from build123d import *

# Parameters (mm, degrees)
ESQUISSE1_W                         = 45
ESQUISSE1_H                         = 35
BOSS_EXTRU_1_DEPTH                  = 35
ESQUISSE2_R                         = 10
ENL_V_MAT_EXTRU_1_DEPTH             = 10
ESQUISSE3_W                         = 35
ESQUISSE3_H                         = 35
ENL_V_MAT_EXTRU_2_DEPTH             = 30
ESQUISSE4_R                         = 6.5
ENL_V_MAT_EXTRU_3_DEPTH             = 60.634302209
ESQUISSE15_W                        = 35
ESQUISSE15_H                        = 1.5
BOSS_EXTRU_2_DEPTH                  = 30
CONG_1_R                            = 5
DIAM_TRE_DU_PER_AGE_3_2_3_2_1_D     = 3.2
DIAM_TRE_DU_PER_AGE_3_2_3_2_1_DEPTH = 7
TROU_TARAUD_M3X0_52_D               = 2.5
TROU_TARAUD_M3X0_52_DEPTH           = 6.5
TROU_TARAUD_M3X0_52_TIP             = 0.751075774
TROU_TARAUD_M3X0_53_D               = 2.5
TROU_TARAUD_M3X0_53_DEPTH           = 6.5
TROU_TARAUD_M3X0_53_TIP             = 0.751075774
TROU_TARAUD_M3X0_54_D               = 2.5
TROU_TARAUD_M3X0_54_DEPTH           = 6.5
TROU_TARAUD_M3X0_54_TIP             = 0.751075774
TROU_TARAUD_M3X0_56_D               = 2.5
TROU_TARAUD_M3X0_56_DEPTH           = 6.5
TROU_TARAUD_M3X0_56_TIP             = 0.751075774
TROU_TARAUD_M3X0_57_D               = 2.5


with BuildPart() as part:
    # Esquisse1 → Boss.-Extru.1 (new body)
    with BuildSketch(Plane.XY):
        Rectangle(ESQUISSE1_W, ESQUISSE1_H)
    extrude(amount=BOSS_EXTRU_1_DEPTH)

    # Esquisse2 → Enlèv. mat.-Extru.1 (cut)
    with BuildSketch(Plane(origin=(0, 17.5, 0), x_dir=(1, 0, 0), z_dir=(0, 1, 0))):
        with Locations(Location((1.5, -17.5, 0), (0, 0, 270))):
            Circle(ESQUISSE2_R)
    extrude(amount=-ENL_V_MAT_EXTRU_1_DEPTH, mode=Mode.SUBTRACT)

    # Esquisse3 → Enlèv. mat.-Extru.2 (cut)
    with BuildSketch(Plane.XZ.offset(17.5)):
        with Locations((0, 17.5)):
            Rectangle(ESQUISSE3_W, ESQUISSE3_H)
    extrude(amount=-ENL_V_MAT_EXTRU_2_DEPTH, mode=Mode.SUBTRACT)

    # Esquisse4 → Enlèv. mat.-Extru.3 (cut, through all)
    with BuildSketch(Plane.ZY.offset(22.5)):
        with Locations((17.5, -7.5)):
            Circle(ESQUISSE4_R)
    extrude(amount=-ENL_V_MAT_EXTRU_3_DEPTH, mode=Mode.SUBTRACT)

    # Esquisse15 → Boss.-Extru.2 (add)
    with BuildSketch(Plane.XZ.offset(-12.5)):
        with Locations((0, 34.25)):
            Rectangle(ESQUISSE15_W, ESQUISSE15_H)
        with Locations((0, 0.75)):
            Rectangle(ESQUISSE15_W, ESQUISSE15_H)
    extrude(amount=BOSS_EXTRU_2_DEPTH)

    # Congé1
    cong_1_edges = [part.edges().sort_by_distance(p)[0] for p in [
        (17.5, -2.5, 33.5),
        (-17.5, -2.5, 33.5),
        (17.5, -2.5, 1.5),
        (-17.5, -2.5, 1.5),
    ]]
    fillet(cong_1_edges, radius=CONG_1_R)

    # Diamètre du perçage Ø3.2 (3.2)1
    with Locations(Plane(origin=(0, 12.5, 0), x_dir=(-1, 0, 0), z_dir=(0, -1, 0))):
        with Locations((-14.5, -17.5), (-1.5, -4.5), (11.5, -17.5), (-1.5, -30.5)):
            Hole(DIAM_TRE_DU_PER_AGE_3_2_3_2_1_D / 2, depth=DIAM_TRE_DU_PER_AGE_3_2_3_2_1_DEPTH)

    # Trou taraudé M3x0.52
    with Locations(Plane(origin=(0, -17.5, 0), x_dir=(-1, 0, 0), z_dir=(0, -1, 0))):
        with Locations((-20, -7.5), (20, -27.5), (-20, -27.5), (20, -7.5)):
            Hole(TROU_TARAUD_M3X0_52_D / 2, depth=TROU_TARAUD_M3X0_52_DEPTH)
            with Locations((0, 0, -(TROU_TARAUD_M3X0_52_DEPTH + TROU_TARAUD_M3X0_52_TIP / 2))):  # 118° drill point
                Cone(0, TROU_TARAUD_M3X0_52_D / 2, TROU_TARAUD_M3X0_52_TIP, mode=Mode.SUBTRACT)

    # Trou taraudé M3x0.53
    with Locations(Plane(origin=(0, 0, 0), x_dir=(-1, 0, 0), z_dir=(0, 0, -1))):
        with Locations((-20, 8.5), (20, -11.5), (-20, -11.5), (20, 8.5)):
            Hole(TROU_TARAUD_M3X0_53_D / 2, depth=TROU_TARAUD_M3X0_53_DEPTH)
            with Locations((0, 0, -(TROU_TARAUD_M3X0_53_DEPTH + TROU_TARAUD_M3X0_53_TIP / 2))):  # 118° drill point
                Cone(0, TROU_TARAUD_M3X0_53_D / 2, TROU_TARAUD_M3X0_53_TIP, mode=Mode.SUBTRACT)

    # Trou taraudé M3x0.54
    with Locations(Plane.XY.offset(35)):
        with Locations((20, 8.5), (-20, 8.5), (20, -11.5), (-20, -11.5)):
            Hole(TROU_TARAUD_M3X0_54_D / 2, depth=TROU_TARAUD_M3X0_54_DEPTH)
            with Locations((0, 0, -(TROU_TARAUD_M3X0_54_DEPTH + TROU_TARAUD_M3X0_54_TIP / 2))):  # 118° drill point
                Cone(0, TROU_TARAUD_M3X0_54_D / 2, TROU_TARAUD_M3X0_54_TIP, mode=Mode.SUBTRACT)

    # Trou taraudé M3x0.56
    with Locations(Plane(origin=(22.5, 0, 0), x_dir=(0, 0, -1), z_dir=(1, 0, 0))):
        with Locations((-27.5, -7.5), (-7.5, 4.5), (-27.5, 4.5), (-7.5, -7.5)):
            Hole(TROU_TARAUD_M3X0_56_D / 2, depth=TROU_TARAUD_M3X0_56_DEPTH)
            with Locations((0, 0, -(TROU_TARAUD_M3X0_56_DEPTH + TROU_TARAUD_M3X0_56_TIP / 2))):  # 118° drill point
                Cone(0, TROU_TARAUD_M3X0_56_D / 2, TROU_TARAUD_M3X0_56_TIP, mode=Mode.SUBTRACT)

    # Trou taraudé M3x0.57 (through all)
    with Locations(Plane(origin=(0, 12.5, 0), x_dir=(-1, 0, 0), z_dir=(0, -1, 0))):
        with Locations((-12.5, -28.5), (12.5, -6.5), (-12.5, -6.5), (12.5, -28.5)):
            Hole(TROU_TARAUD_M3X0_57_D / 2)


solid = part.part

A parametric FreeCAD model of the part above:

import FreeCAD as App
import Part
import Sketcher

V = App.Vector


def edges_at(feature, points):
    """Names of the edges that pass closest to the given points."""
    edges = feature.Shape.Edges
    near = lambda p: min(range(len(edges)), key=lambda i: edges[i].distToShape(Part.Vertex(*p))[0])
    return sorted({f"Edge{near(p) + 1}" for p in points})

doc = App.newDocument("Part")
body = doc.addObject("PartDesign::Body", "Body")

sketch1 = body.newObject("Sketcher::SketchObject", "Sketch")
sketch1.AttachmentSupport = (doc.getObject("XY_Plane"), [""])
sketch1.MapMode = "FlatFace"
sketch1.addGeometry([
    Part.LineSegment(V(-22.5, 17.5, 0), V(-22.5, -17.5, 0)),
    Part.LineSegment(V(-22.5, -17.5, 0), V(22.5, -17.5, 0)),
    Part.LineSegment(V(22.5, -17.5, 0), V(22.5, 17.5, 0)),
    Part.LineSegment(V(22.5, 17.5, 0), V(-22.5, 17.5, 0)),
], False)
sketch1.addConstraint([
    Sketcher.Constraint("Coincident", 0, 2, 1, 1),
    Sketcher.Constraint("Coincident", 1, 2, 2, 1),
    Sketcher.Constraint("Coincident", 2, 2, 3, 1),
    Sketcher.Constraint("Coincident", 3, 2, 0, 1),
    Sketcher.Constraint("Vertical", 0),
    Sketcher.Constraint("Horizontal", 1),
    Sketcher.Constraint("Vertical", 2),
    Sketcher.Constraint("Horizontal", 3),
    Sketcher.Constraint("Symmetric", 0, 2, 2, 2, -1, 1),
    Sketcher.Constraint("DistanceX", 1, 1, 1, 2, 45.0),
    Sketcher.Constraint("DistanceY", 0, 2, 0, 1, 35.0),
])
pad1 = body.newObject("PartDesign::Pad", "Pad")
pad1.Profile = sketch1
pad1.Length = 35

sketch2 = body.newObject("Sketcher::SketchObject", "Sketch001")
sketch2.AttachmentSupport = (doc.getObject("XZ_Plane"), [""])
sketch2.MapMode = "FlatFace"
sketch2.AttachmentOffset = App.Placement(V(0, 0, -17.5), App.Rotation())
sketch2.addGeometry(Part.Circle(V(1.5, 17.5, 0), V(0, 0, 1), 10), False)
sketch2.addConstraint([
    Sketcher.Constraint("Diameter", 0, 20.0),
    Sketcher.Constraint("DistanceX", -1, 1, 0, 3, 1.5),
    Sketcher.Constraint("DistanceY", -1, 1, 0, 3, 17.5),
])
pocket1 = body.newObject("PartDesign::Pocket", "Pocket")
pocket1.Profile = sketch2
pocket1.Length = 10
pocket1.Reversed = True

sketch3 = body.newObject("Sketcher::SketchObject", "Sketch002")
sketch3.AttachmentSupport = (doc.getObject("XZ_Plane"), [""])
sketch3.MapMode = "FlatFace"
sketch3.AttachmentOffset = App.Placement(V(0, 0, 17.5), App.Rotation())
sketch3.addGeometry([
    Part.LineSegment(V(-17.5, 35, 0), V(-17.5, 0, 0)),
    Part.LineSegment(V(-17.5, 0, 0), V(17.5, 0, 0)),
    Part.LineSegment(V(17.5, 0, 0), V(17.5, 35, 0)),
    Part.LineSegment(V(17.5, 35, 0), V(-17.5, 35, 0)),
], False)
sketch3.addConstraint([
    Sketcher.Constraint("Coincident", 0, 2, 1, 1),
    Sketcher.Constraint("Coincident", 1, 2, 2, 1),
    Sketcher.Constraint("Coincident", 2, 2, 3, 1),
    Sketcher.Constraint("Coincident", 3, 2, 0, 1),
    Sketcher.Constraint("Vertical", 0),
    Sketcher.Constraint("Horizontal", 1),
    Sketcher.Constraint("Vertical", 2),
    Sketcher.Constraint("Horizontal", 3),
    Sketcher.Constraint("Symmetric", 0, 2, 1, 2, -1, 1),
    Sketcher.Constraint("Equal", 3, 0),
    Sketcher.Constraint("DistanceX", 1, 1, 1, 2, 35.0),
])
pocket2 = body.newObject("PartDesign::Pocket", "Pocket001")
pocket2.Profile = sketch3
pocket2.Length = 30

sketch4 = body.newObject("Sketcher::SketchObject", "Sketch003")
sketch4.AttachmentSupport = (doc.getObject("YZ_Plane"), [""])
sketch4.MapMode = "FlatFace"
sketch4.AttachmentOffset = App.Placement(V(0, 0, -22.5), App.Rotation())
sketch4.addGeometry(Part.Circle(V(-7.5, 17.5, 0), V(0, 0, 1), 6.5), False)
sketch4.addConstraint([
    Sketcher.Constraint("Diameter", 0, 13.0),
    Sketcher.Constraint("DistanceX", 0, 3, -1, 1, 7.5),
    Sketcher.Constraint("DistanceY", -1, 1, 0, 3, 17.5),
])
pocket3 = body.newObject("PartDesign::Pocket", "Pocket002")
pocket3.Profile = sketch4
pocket3.Type = "ThroughAll"
pocket3.Reversed = True

sketch5 = body.newObject("Sketcher::SketchObject", "Sketch004")
sketch5.AttachmentSupport = (doc.getObject("XZ_Plane"), [""])
sketch5.MapMode = "FlatFace"
sketch5.AttachmentOffset = App.Placement(V(0, 0, -12.5), App.Rotation())
sketch5.addGeometry([
    Part.LineSegment(V(-17.5, 35, 0), V(-17.5, 33.5, 0)),
    Part.LineSegment(V(-17.5, 33.5, 0), V(17.5, 33.5, 0)),
    Part.LineSegment(V(17.5, 33.5, 0), V(17.5, 35, 0)),
    Part.LineSegment(V(17.5, 35, 0), V(-17.5, 35, 0)),
    Part.LineSegment(V(-17.5, 1.5, 0), V(-17.5, 0, 0)),
    Part.LineSegment(V(-17.5, 0, 0), V(17.5, 0, 0)),
    Part.LineSegment(V(17.5, 0, 0), V(17.5, 1.5, 0)),
    Part.LineSegment(V(17.5, 1.5, 0), V(-17.5, 1.5, 0)),
], False)
sketch5.addConstraint([
    Sketcher.Constraint("Coincident", 0, 2, 1, 1),
    Sketcher.Constraint("Coincident", 1, 2, 2, 1),
    Sketcher.Constraint("Coincident", 2, 2, 3, 1),
    Sketcher.Constraint("Coincident", 3, 2, 0, 1),
    Sketcher.Constraint("Coincident", 4, 2, 5, 1),
    Sketcher.Constraint("Coincident", 5, 2, 6, 1),
    Sketcher.Constraint("Coincident", 6, 2, 7, 1),
    Sketcher.Constraint("Coincident", 7, 2, 4, 1),
    Sketcher.Constraint("Vertical", 0),
    Sketcher.Constraint("Horizontal", 1),
    Sketcher.Constraint("Vertical", 2),
    Sketcher.Constraint("Horizontal", 3),
    Sketcher.Constraint("Vertical", 4),
    Sketcher.Constraint("Horizontal", 5),
    Sketcher.Constraint("Vertical", 6),
    Sketcher.Constraint("Horizontal", 7),
    Sketcher.Constraint("Symmetric", 4, 2, 5, 2, -1, 1),
    Sketcher.Constraint("Vertical", 3, 2, 4, 2),
    Sketcher.Constraint("Vertical", 2, 2, 5, 2),
    Sketcher.Constraint("Equal", 2, 4),
    Sketcher.Constraint("DistanceX", 1, 1, 1, 2, 35.0),
    Sketcher.Constraint("DistanceY", 0, 2, 0, 1, 1.5),
    Sketcher.Constraint("DistanceY", -1, 1, 2, 2, 35.0),
])
pad2 = body.newObject("PartDesign::Pad", "Pad001")
pad2.Profile = sketch5
pad2.Length = 30
doc.recompute()

fillet = body.newObject("PartDesign::Fillet", "Fillet")
fillet.Base = (pad2, edges_at(pad2, [
    (17.5, -2.5, 33.5),
    (-17.5, -2.5, 33.5),
    (17.5, -2.5, 1.5),
    (-17.5, -2.5, 1.5),
]))
fillet.Radius = 5

sketch6 = body.newObject("Sketcher::SketchObject", "Sketch005")
sketch6.AttachmentSupport = (doc.getObject("XZ_Plane"), [""])
sketch6.MapMode = "FlatFace"
sketch6.AttachmentOffset = App.Placement(V(0, 0, -12.5), App.Rotation())
sketch6.addGeometry([
    Part.Circle(V(14.5, 17.5, 0), V(0, 0, 1), 1.6),
    Part.Circle(V(1.5, 4.5, 0), V(0, 0, 1), 1.6),
    Part.Circle(V(-11.5, 17.5, 0), V(0, 0, 1), 1.6),
    Part.Circle(V(1.5, 30.5, 0), V(0, 0, 1), 1.6),
], False)
sketch6.addConstraint([
    Sketcher.Constraint("Equal", 0, 1),
    Sketcher.Constraint("Equal", 1, 2),
    Sketcher.Constraint("Equal", 2, 3),
    Sketcher.Constraint("Horizontal", 0, 3, 2, 3),
    Sketcher.Constraint("Vertical", 1, 3, 3, 3),
    Sketcher.Constraint("Diameter", 0, 3.2),
    Sketcher.Constraint("DistanceX", 1, 3, 0, 3, 13.0),
    Sketcher.Constraint("DistanceY", 1, 3, 0, 3, 13.0),
    Sketcher.Constraint("DistanceX", 2, 3, 1, 3, 13.0),
    Sketcher.Constraint("DistanceY", 0, 3, 3, 3, 13.0),
    Sketcher.Constraint("DistanceX", -1, 1, 0, 3, 14.5),
    Sketcher.Constraint("DistanceY", -1, 1, 0, 3, 17.5),
])
doc.recompute()
hole = body.newObject("PartDesign::Hole", "Hole")
hole.Profile = sketch6
hole.ThreadType = "None"
hole.Diameter = 3.2
hole.DepthType = "Dimension"
hole.Depth = 7
hole.DrillPoint = "Flat"

sketch7 = body.newObject("Sketcher::SketchObject", "Sketch006")
sketch7.AttachmentSupport = (doc.getObject("XZ_Plane"), [""])
sketch7.MapMode = "FlatFace"
sketch7.AttachmentOffset = App.Placement(V(0, 0, 17.5), App.Rotation())
sketch7.addGeometry([
    Part.Circle(V(20, 7.5, 0), V(0, 0, 1), 1.25),
    Part.Circle(V(-20, 27.5, 0), V(0, 0, 1), 1.25),
    Part.Circle(V(20, 27.5, 0), V(0, 0, 1), 1.25),
    Part.Circle(V(-20, 7.5, 0), V(0, 0, 1), 1.25),
], False)
sketch7.addConstraint([
    Sketcher.Constraint("Equal", 0, 1),
    Sketcher.Constraint("Equal", 1, 2),
    Sketcher.Constraint("Equal", 2, 3),
    Sketcher.Constraint("Symmetric", 1, 3, 2, 3, -2),
    Sketcher.Constraint("Symmetric", 0, 3, 3, 3, -2),
    Sketcher.Constraint("Vertical", 0, 3, 2, 3),
    Sketcher.Constraint("Diameter", 0, 2.5),
    Sketcher.Constraint("DistanceX", -1, 1, 0, 3, 20.0),
    Sketcher.Constraint("DistanceY", 0, 3, 1, 3, 20.0),
    Sketcher.Constraint("DistanceY", -1, 1, 0, 3, 7.5),
])
doc.recompute()
hole2 = body.newObject("PartDesign::Hole", "Hole001")
hole2.Profile = sketch7
hole2.ThreadType = "None"
hole2.Diameter = 2.5
hole2.DepthType = "Dimension"
hole2.Depth = 6.5
hole2.DrillPoint = "Angled"
hole2.DrillPointAngle = 118

sketch8 = body.newObject("Sketcher::SketchObject", "Sketch007")
sketch8.AttachmentSupport = (doc.getObject("XY_Plane"), [""])
sketch8.MapMode = "FlatFace"
sketch8.addGeometry([
    Part.Circle(V(20, 8.5, 0), V(0, 0, 1), 1.25),
    Part.Circle(V(-20, -11.5, 0), V(0, 0, 1), 1.25),
    Part.Circle(V(20, -11.5, 0), V(0, 0, 1), 1.25),
    Part.Circle(V(-20, 8.5, 0), V(0, 0, 1), 1.25),
], False)
sketch8.addConstraint([
    Sketcher.Constraint("Equal", 0, 1),
    Sketcher.Constraint("Equal", 1, 2),
    Sketcher.Constraint("Equal", 2, 3),
    Sketcher.Constraint("Symmetric", 1, 3, 2, 3, -2),
    Sketcher.Constraint("Symmetric", 0, 3, 3, 3, -2),
    Sketcher.Constraint("Vertical", 0, 3, 2, 3),
    Sketcher.Constraint("Diameter", 0, 2.5),
    Sketcher.Constraint("DistanceX", -1, 1, 0, 3, 20.0),
    Sketcher.Constraint("DistanceY", 1, 3, 0, 3, 20.0),
    Sketcher.Constraint("DistanceY", -1, 1, 0, 3, 8.5),
])
doc.recompute()
hole3 = body.newObject("PartDesign::Hole", "Hole002")
hole3.Profile = sketch8
hole3.ThreadType = "None"
hole3.Diameter = 2.5
hole3.DepthType = "Dimension"
hole3.Depth = 6.5
hole3.DrillPoint = "Angled"
hole3.DrillPointAngle = 118
hole3.Reversed = True

sketch9 = body.newObject("Sketcher::SketchObject", "Sketch008")
sketch9.AttachmentSupport = (doc.getObject("XY_Plane"), [""])
sketch9.MapMode = "FlatFace"
sketch9.AttachmentOffset = App.Placement(V(0, 0, 35), App.Rotation())
sketch9.addGeometry([
    Part.Circle(V(20, 8.5, 0), V(0, 0, 1), 1.25),
    Part.Circle(V(-20, 8.5, 0), V(0, 0, 1), 1.25),
    Part.Circle(V(20, -11.5, 0), V(0, 0, 1), 1.25),
    Part.Circle(V(-20, -11.5, 0), V(0, 0, 1), 1.25),
], False)
sketch9.addConstraint([
    Sketcher.Constraint("Equal", 0, 1),
    Sketcher.Constraint("Equal", 1, 2),
    Sketcher.Constraint("Equal", 2, 3),
    Sketcher.Constraint("Symmetric", 0, 3, 1, 3, -2),
    Sketcher.Constraint("Symmetric", 2, 3, 3, 3, -2),
    Sketcher.Constraint("Vertical", 0, 3, 2, 3),
    Sketcher.Constraint("Diameter", 0, 2.5),
    Sketcher.Constraint("DistanceX", -1, 1, 0, 3, 20.0),
    Sketcher.Constraint("DistanceY", 2, 3, 0, 3, 20.0),
    Sketcher.Constraint("DistanceY", -1, 1, 0, 3, 8.5),
])
doc.recompute()
hole4 = body.newObject("PartDesign::Hole", "Hole003")
hole4.Profile = sketch9
hole4.ThreadType = "None"
hole4.Diameter = 2.5
hole4.DepthType = "Dimension"
hole4.Depth = 6.5
hole4.DrillPoint = "Angled"
hole4.DrillPointAngle = 118

sketch10 = body.newObject("Sketcher::SketchObject", "Sketch009")
sketch10.AttachmentSupport = (doc.getObject("YZ_Plane"), [""])
sketch10.MapMode = "FlatFace"
sketch10.AttachmentOffset = App.Placement(V(0, 0, 22.5), App.Rotation())
sketch10.addGeometry([
    Part.Circle(V(-7.5, 27.5, 0), V(0, 0, 1), 1.25),
    Part.Circle(V(4.5, 7.5, 0), V(0, 0, 1), 1.25),
    Part.Circle(V(4.5, 27.5, 0), V(0, 0, 1), 1.25),
    Part.Circle(V(-7.5, 7.5, 0), V(0, 0, 1), 1.25),
], False)
sketch10.addConstraint([
    Sketcher.Constraint("Equal", 0, 1),
    Sketcher.Constraint("Equal", 1, 2),
    Sketcher.Constraint("Equal", 2, 3),
    Sketcher.Constraint("Horizontal", 0, 3, 2, 3),
    Sketcher.Constraint("Horizontal", 1, 3, 3, 3),
    Sketcher.Constraint("Vertical", 1, 3, 2, 3),
    Sketcher.Constraint("Vertical", 0, 3, 3, 3),
    Sketcher.Constraint("Diameter", 0, 2.5),
    Sketcher.Constraint("DistanceX", 0, 3, 1, 3, 12.0),
    Sketcher.Constraint("DistanceY", 1, 3, 0, 3, 20.0),
    Sketcher.Constraint("DistanceX", 0, 3, -1, 1, 7.5),
    Sketcher.Constraint("DistanceY", -1, 1, 0, 3, 27.5),
])
doc.recompute()
hole5 = body.newObject("PartDesign::Hole", "Hole004")
hole5.Profile = sketch10
hole5.ThreadType = "None"
hole5.Diameter = 2.5
hole5.DepthType = "Dimension"
hole5.Depth = 6.5
hole5.DrillPoint = "Angled"
hole5.DrillPointAngle = 118

sketch11 = body.newObject("Sketcher::SketchObject", "Sketch010")
sketch11.AttachmentSupport = (doc.getObject("XZ_Plane"), [""])
sketch11.MapMode = "FlatFace"
sketch11.AttachmentOffset = App.Placement(V(0, 0, -12.5), App.Rotation())
sketch11.addGeometry([
    Part.Circle(V(12.5, 28.5, 0), V(0, 0, 1), 1.25),
    Part.Circle(V(-12.5, 6.5, 0), V(0, 0, 1), 1.25),
    Part.Circle(V(12.5, 6.5, 0), V(0, 0, 1), 1.25),
    Part.Circle(V(-12.5, 28.5, 0), V(0, 0, 1), 1.25),
], False)
sketch11.addConstraint([
    Sketcher.Constraint("Equal", 0, 1),
    Sketcher.Constraint("Equal", 1, 2),
    Sketcher.Constraint("Equal", 2, 3),
    Sketcher.Constraint("Symmetric", 1, 3, 2, 3, -2),
    Sketcher.Constraint("Symmetric", 0, 3, 3, 3, -2),
    Sketcher.Constraint("Vertical", 0, 3, 2, 3),
    Sketcher.Constraint("Diameter", 0, 2.5),
    Sketcher.Constraint("DistanceX", 1, 3, 0, 3, 25.0),
    Sketcher.Constraint("DistanceY", 1, 3, 0, 3, 22.0),
    Sketcher.Constraint("DistanceY", -1, 1, 0, 3, 28.5),
])
doc.recompute()
hole6 = body.newObject("PartDesign::Hole", "Hole005")
hole6.Profile = sketch11
hole6.ThreadType = "None"
hole6.Diameter = 2.5
hole6.DepthType = "ThroughAll"

doc.recompute()
